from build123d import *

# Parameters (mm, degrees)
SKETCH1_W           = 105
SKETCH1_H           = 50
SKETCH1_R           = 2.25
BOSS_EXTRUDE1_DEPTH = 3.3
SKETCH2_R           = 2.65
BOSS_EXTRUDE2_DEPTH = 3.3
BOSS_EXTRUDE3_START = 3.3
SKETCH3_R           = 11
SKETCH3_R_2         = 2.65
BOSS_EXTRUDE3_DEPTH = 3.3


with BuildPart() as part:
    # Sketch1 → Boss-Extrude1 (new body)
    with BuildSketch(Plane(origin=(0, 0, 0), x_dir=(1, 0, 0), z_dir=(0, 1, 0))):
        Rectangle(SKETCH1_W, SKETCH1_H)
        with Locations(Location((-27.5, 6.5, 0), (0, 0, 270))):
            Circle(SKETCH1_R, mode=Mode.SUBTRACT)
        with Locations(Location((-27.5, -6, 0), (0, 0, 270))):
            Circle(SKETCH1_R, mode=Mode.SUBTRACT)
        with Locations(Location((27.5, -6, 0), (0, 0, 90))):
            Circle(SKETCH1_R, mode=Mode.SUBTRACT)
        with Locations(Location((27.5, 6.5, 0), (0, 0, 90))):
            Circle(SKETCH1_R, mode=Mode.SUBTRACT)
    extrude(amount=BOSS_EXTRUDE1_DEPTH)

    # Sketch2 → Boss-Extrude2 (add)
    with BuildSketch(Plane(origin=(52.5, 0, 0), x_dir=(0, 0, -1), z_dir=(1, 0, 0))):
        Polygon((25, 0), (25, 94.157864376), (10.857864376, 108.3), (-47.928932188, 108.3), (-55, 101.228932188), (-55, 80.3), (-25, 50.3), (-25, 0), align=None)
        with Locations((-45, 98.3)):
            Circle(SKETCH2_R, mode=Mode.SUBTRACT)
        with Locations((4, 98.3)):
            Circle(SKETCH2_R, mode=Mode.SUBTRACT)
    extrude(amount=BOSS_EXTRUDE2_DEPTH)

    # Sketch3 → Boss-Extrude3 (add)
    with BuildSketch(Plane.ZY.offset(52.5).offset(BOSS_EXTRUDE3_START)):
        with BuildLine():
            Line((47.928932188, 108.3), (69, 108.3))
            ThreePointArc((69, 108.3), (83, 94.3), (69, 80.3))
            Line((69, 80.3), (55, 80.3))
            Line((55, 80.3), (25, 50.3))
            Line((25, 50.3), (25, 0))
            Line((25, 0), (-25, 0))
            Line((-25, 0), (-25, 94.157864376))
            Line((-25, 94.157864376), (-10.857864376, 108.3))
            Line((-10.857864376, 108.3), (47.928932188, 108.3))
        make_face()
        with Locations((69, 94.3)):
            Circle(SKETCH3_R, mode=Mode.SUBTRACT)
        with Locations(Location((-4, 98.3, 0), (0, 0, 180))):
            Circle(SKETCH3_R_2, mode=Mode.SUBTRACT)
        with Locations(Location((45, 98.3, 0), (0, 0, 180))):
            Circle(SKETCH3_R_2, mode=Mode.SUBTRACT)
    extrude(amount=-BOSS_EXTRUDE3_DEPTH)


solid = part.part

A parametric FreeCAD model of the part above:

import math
import FreeCAD as App
import Part
import Sketcher

V = App.Vector
Q = App.Units.Quantity

doc = App.newDocument("Part")
body = doc.addObject("PartDesign::Body", "Body")

# Sketch on XZ plane
sketch1 = doc.addObject("Sketcher::SketchObject", "Sketch")
body.addObject(sketch1)
sketch1.AttachmentSupport = (doc.XZ_Plane, [""])
sketch1.MapMode = "FlatFace"
sketch1.addGeometry(Part.LineSegment(V(-52.5, -25, 0), V(-52.5, 25, 0)), False)
sketch1.addGeometry(Part.LineSegment(V(-52.5, 25, 0), V(52.5, 25, 0)), False)
sketch1.addGeometry(Part.LineSegment(V(52.5, 25, 0), V(52.5, -25, 0)), False)
sketch1.addGeometry(Part.LineSegment(V(52.5, -25, 0), V(-52.5, -25, 0)), False)
sketch1.addGeometry(Part.Circle(V(-27.5, 6, 0), V(0, 0, 1), 2.2), False)
sketch1.addGeometry(Part.Circle(V(27.5, 6, 0), V(0, 0, 1), 2.2), False)
sketch1.addGeometry(Part.Circle(V(-27.5, -6.5, 0), V(0, 0, 1), 2.2), False)
sketch1.addGeometry(Part.Circle(V(27.5, -6.5, 0), V(0, 0, 1), 2.2), False)
sketch1.addConstraint(Sketcher.Constraint("Coincident", 0, 2, 1, 1))
sketch1.addConstraint(Sketcher.Constraint("Coincident", 1, 2, 2, 1))
sketch1.addConstraint(Sketcher.Constraint("Coincident", 2, 2, 3, 1))
sketch1.addConstraint(Sketcher.Constraint("Coincident", 3, 2, 0, 1))
sketch1.addConstraint(Sketcher.Constraint("Vertical", 0))
sketch1.addConstraint(Sketcher.Constraint("Horizontal", 1))
sketch1.addConstraint(Sketcher.Constraint("Vertical", 2))
sketch1.addConstraint(Sketcher.Constraint("Horizontal", 3))
sketch1.addConstraint(Sketcher.Constraint("Equal", 4, 5))
sketch1.addConstraint(Sketcher.Constraint("Equal", 5, 6))
sketch1.addConstraint(Sketcher.Constraint("Equal", 6, 7))
sketch1.addConstraint(Sketcher.Constraint("Symmetric", 0, 2, 2, 2, -1, 1))
sketch1.addConstraint(Sketcher.Constraint("Symmetric", 4, 3, 5, 3, -2))
sketch1.addConstraint(Sketcher.Constraint("Symmetric", 6, 3, 7, 3, -2))
sketch1.addConstraint(Sketcher.Constraint("Vertical", 4, 3, 6, 3))
sketch1.addConstraint(Sketcher.Constraint("Diameter", 4, Q("4.5 mm")))
sketch1.addConstraint(Sketcher.Constraint("DistanceX", 1, 1, 1, 2, Q("105 mm")))
sketch1.addConstraint(Sketcher.Constraint("DistanceY", 0, 1, 0, 2, Q("50 mm")))
sketch1.addConstraint(Sketcher.Constraint("DistanceY", -1, 1, 4, 3, Q("6 mm")))
sketch1.addConstraint(Sketcher.Constraint("DistanceX", 4, 3, 5, 3, Q("55 mm")))
sketch1.addConstraint(Sketcher.Constraint("DistanceY", 6, 3, -1, 1, Q("6.5 mm")))
pad1 = doc.addObject("PartDesign::Pad", "Pad")
body.addObject(pad1)
pad1.Profile = sketch1
pad1.Length = 3.3
pad1.Reversed = True

# Sketch on YZ plane
sketch2 = doc.addObject("Sketcher::SketchObject", "Sketch001")
body.addObject(sketch2)
sketch2.AttachmentSupport = (doc.YZ_Plane, [""])
sketch2.MapMode = "FlatFace"
sketch2.AttachmentOffset = App.Placement(V(0, 0, 52.5), App.Rotation())
sketch2.addGeometry(Part.LineSegment(V(0, -25, 0), V(94.2, -25, 0)), False)
sketch2.addGeometry(Part.LineSegment(V(94.2, -25, 0), V(108.3, -10.9, 0)), False)
sketch2.addGeometry(Part.LineSegment(V(108.3, -10.9, 0), V(108.3, 47.9, 0)), False)
sketch2.addGeometry(Part.LineSegment(V(108.3, 47.9, 0), V(101.2, 55, 0)), False)
sketch2.addGeometry(Part.LineSegment(V(101.2, 55, 0), V(80.3, 55, 0)), False)
sketch2.addGeometry(Part.LineSegment(V(80.3, 55, 0), V(50.3, 25, 0)), False)
sketch2.addGeometry(Part.LineSegment(V(50.3, 25, 0), V(0, 25, 0)), False)
sketch2.addGeometry(Part.LineSegment(V(0, 25, 0), V(0, -25, 0)), False)
sketch2.addGeometry(Part.Circle(V(98.3, 45, 0), V(0, 0, 1), 2.6), False)
sketch2.addGeometry(Part.Circle(V(98.3, -4, 0), V(0, 0, 1), 2.6), False)
sketch2.addConstraint(Sketcher.Constraint("Coincident", 0, 2, 1, 1))
sketch2.addConstraint(Sketcher.Constraint("Coincident", 1, 2, 2, 1))
sketch2.addConstraint(Sketcher.Constraint("Coincident", 2, 2, 3, 1))
sketch2.addConstraint(Sketcher.Constraint("Coincident", 3, 2, 4, 1))
sketch2.addConstraint(Sketcher.Constraint("Coincident", 4, 2, 5, 1))
sketch2.addConstraint(Sketcher.Constraint("Coincident", 5, 2, 6, 1))
sketch2.addConstraint(Sketcher.Constraint("Coincident", 6, 2, 7, 1))
sketch2.addConstraint(Sketcher.Constraint("Coincident", 7, 2, 0, 1))
sketch2.addConstraint(Sketcher.Constraint("Horizontal", 0))
sketch2.addConstraint(Sketcher.Constraint("Vertical", 2))
sketch2.addConstraint(Sketcher.Constraint("Horizontal", 4))
sketch2.addConstraint(Sketcher.Constraint("Horizontal", 6))
sketch2.addConstraint(Sketcher.Constraint("Vertical", 7))
sketch2.addConstraint(Sketcher.Constraint("Equal", 8, 9))
sketch2.addConstraint(Sketcher.Constraint("Symmetric", 6, 2, 7, 2, -1, 1))
sketch2.addConstraint(Sketcher.Constraint("Perpendicular", 1, 3))
sketch2.addConstraint(Sketcher.Constraint("Perpendicular", 3, 5))
sketch2.addConstraint(Sketcher.Constraint("Vertical", 8, 3, 9, 3))
sketch2.addConstraint(Sketcher.Constraint("Diameter", 8, Q("5.3 mm")))
sketch2.addConstraint(Sketcher.Constraint("DistanceY", 7, 2, 7, 1, Q("50 mm")))
sketch2.addConstraint(Sketcher.Constraint("Angle", 1, Q("45 deg")))
sketch2.addConstraint(Sketcher.Constraint("Distance", 1, Q("20 mm")))
sketch2.addConstraint(Sketcher.Constraint("Distance", 3, Q("10 mm")))
sketch2.addConstraint(Sketcher.Constraint("DistanceX", 6, 2, 6, 1, Q("50.3 mm")))
sketch2.addConstraint(Sketcher.Constraint("DistanceY", -1, 1, 8, 3, Q("45 mm")))
sketch2.addConstraint(Sketcher.Constraint("DistanceY", 9, 3, -1, 1, Q("4 mm")))
sketch2.addConstraint(Sketcher.Constraint("DistanceY", -1, 1, 3, 2, Q("55 mm")))
sketch2.addConstraint(Sketcher.Constraint("DistanceX", 9, 3, 1, 2, Q("10 mm")))
sketch2.addConstraint(Sketcher.Constraint("DistanceX", 4, 2, 8, 3, Q("18 mm")))
pad2 = doc.addObject("PartDesign::Pad", "Pad001")
body.addObject(pad2)
pad2.Profile = sketch2
pad2.Length = 3.3

# Sketch on YZ plane
sketch3 = doc.addObject("Sketcher::SketchObject", "Sketch002")
body.addObject(sketch3)
sketch3.AttachmentSupport = (doc.YZ_Plane, [""])
sketch3.MapMode = "FlatFace"
sketch3.AttachmentOffset = App.Placement(V(0, 0, -55.8), App.Rotation())
sketch3.addGeometry(Part.ArcOfCircle(Part.Circle(V(94.3, 69, 0), V(0, 0, 1), 14), math.radians(0), math.radians(180)), False)
sketch3.addGeometry(Part.LineSegment(V(108.3, 69, 0), V(108.3, -10.9, 0)), False)
sketch3.addGeometry(Part.LineSegment(V(108.3, -10.9, 0), V(94.2, -25, 0)), False)
sketch3.addGeometry(Part.LineSegment(V(94.2, -25, 0), V(0, -25, 0)), False)
sketch3.addGeometry(Part.LineSegment(V(0, -25, 0), V(0, 25, 0)), False)
sketch3.addGeometry(Part.LineSegment(V(0, 25, 0), V(50.3, 25, 0)), False)
sketch3.addGeometry(Part.LineSegment(V(50.3, 25, 0), V(80.3, 55, 0)), False)
sketch3.addGeometry(Part.LineSegment(V(80.3, 55, 0), V(80.3, 69, 0)), False)
sketch3.addGeometry(Part.Circle(V(94.3, 69, 0), V(0, 0, 1), 11), False)
sketch3.addGeometry(Part.Circle(V(98.3, 45, 0), V(0, 0, 1), 2.6), False)
sketch3.addGeometry(Part.Circle(V(98.3, -4, 0), V(0, 0, 1), 2.6), False)
sketch3.addConstraint(Sketcher.Constraint("Tangent", 0, 1, 1, 1))
sketch3.addConstraint(Sketcher.Constraint("Coincident", 1, 2, 2, 1))
sketch3.addConstraint(Sketcher.Constraint("Coincident", 2, 2, 3, 1))
sketch3.addConstraint(Sketcher.Constraint("Coincident", 3, 2, 4, 1))
sketch3.addConstraint(Sketcher.Constraint("Coincident", 4, 2, 5, 1))
sketch3.addConstraint(Sketcher.Constraint("Coincident", 5, 2, 6, 1))
sketch3.addConstraint(Sketcher.Constraint("Coincident", 6, 2, 7, 1))
sketch3.addConstraint(Sketcher.Constraint("Tangent", 7, 2, 0, 2))
sketch3.addConstraint(Sketcher.Constraint("Vertical", 1))
sketch3.addConstraint(Sketcher.Constraint("Horizontal", 3))
sketch3.addConstraint(Sketcher.Constraint("Vertical", 4))
sketch3.addConstraint(Sketcher.Constraint("Horizontal", 5))
sketch3.addConstraint(Sketcher.Constraint("Vertical", 7))
sketch3.addConstraint(Sketcher.Constraint("Coincident", 8, 3, 0, 3))
sketch3.addConstraint(Sketcher.Constraint("Equal", 9, 10))
sketch3.addConstraint(Sketcher.Constraint("Symmetric", 3, 2, 4, 2, -1, 1))
sketch3.addConstraint(Sketcher.Constraint("Parallel", 2, 6))
sketch3.addConstraint(Sketcher.Constraint("Vertical", 9, 3, 10, 3))
sketch3.addConstraint(Sketcher.Constraint("Diameter", 8, Q("22 mm")))
sketch3.addConstraint(Sketcher.Constraint("Radius", 0, Q("14 mm")))
sketch3.addConstraint(Sketcher.Constraint("Diameter", 9, Q("5.3 mm")))
sketch3.addConstraint(Sketcher.Constraint("DistanceY", 4, 1, 4, 2, Q("50 mm")))
sketch3.addConstraint(Sketcher.Constraint("DistanceY", 7, 1, 7, 2, Q("14 mm")))
sketch3.addConstraint(Sketcher.Constraint("Angle", 2, Q("-135 deg")))
sketch3.addConstraint(Sketcher.Constraint("Distance", 2, Q("20 mm")))
sketch3.addConstraint(Sketcher.Constraint("DistanceX", 5, 1, 5, 2, Q("50.3 mm")))
sketch3.addConstraint(Sketcher.Constraint("DistanceY", -1, 1, 0, 3, Q("69 mm")))
sketch3.addConstraint(Sketcher.Constraint("DistanceY", -1, 1, 9, 3, Q("45 mm")))
sketch3.addConstraint(Sketcher.Constraint("DistanceY", 10, 3, -1, 1, Q("4 mm")))
sketch3.addConstraint(Sketcher.Constraint("DistanceX", 0, 3, 9, 3, Q("4 mm")))
pad3 = doc.addObject("PartDesign::Pad", "Pad002")
body.addObject(pad3)
pad3.Profile = sketch3
pad3.Length = 3.3

doc.recompute()
